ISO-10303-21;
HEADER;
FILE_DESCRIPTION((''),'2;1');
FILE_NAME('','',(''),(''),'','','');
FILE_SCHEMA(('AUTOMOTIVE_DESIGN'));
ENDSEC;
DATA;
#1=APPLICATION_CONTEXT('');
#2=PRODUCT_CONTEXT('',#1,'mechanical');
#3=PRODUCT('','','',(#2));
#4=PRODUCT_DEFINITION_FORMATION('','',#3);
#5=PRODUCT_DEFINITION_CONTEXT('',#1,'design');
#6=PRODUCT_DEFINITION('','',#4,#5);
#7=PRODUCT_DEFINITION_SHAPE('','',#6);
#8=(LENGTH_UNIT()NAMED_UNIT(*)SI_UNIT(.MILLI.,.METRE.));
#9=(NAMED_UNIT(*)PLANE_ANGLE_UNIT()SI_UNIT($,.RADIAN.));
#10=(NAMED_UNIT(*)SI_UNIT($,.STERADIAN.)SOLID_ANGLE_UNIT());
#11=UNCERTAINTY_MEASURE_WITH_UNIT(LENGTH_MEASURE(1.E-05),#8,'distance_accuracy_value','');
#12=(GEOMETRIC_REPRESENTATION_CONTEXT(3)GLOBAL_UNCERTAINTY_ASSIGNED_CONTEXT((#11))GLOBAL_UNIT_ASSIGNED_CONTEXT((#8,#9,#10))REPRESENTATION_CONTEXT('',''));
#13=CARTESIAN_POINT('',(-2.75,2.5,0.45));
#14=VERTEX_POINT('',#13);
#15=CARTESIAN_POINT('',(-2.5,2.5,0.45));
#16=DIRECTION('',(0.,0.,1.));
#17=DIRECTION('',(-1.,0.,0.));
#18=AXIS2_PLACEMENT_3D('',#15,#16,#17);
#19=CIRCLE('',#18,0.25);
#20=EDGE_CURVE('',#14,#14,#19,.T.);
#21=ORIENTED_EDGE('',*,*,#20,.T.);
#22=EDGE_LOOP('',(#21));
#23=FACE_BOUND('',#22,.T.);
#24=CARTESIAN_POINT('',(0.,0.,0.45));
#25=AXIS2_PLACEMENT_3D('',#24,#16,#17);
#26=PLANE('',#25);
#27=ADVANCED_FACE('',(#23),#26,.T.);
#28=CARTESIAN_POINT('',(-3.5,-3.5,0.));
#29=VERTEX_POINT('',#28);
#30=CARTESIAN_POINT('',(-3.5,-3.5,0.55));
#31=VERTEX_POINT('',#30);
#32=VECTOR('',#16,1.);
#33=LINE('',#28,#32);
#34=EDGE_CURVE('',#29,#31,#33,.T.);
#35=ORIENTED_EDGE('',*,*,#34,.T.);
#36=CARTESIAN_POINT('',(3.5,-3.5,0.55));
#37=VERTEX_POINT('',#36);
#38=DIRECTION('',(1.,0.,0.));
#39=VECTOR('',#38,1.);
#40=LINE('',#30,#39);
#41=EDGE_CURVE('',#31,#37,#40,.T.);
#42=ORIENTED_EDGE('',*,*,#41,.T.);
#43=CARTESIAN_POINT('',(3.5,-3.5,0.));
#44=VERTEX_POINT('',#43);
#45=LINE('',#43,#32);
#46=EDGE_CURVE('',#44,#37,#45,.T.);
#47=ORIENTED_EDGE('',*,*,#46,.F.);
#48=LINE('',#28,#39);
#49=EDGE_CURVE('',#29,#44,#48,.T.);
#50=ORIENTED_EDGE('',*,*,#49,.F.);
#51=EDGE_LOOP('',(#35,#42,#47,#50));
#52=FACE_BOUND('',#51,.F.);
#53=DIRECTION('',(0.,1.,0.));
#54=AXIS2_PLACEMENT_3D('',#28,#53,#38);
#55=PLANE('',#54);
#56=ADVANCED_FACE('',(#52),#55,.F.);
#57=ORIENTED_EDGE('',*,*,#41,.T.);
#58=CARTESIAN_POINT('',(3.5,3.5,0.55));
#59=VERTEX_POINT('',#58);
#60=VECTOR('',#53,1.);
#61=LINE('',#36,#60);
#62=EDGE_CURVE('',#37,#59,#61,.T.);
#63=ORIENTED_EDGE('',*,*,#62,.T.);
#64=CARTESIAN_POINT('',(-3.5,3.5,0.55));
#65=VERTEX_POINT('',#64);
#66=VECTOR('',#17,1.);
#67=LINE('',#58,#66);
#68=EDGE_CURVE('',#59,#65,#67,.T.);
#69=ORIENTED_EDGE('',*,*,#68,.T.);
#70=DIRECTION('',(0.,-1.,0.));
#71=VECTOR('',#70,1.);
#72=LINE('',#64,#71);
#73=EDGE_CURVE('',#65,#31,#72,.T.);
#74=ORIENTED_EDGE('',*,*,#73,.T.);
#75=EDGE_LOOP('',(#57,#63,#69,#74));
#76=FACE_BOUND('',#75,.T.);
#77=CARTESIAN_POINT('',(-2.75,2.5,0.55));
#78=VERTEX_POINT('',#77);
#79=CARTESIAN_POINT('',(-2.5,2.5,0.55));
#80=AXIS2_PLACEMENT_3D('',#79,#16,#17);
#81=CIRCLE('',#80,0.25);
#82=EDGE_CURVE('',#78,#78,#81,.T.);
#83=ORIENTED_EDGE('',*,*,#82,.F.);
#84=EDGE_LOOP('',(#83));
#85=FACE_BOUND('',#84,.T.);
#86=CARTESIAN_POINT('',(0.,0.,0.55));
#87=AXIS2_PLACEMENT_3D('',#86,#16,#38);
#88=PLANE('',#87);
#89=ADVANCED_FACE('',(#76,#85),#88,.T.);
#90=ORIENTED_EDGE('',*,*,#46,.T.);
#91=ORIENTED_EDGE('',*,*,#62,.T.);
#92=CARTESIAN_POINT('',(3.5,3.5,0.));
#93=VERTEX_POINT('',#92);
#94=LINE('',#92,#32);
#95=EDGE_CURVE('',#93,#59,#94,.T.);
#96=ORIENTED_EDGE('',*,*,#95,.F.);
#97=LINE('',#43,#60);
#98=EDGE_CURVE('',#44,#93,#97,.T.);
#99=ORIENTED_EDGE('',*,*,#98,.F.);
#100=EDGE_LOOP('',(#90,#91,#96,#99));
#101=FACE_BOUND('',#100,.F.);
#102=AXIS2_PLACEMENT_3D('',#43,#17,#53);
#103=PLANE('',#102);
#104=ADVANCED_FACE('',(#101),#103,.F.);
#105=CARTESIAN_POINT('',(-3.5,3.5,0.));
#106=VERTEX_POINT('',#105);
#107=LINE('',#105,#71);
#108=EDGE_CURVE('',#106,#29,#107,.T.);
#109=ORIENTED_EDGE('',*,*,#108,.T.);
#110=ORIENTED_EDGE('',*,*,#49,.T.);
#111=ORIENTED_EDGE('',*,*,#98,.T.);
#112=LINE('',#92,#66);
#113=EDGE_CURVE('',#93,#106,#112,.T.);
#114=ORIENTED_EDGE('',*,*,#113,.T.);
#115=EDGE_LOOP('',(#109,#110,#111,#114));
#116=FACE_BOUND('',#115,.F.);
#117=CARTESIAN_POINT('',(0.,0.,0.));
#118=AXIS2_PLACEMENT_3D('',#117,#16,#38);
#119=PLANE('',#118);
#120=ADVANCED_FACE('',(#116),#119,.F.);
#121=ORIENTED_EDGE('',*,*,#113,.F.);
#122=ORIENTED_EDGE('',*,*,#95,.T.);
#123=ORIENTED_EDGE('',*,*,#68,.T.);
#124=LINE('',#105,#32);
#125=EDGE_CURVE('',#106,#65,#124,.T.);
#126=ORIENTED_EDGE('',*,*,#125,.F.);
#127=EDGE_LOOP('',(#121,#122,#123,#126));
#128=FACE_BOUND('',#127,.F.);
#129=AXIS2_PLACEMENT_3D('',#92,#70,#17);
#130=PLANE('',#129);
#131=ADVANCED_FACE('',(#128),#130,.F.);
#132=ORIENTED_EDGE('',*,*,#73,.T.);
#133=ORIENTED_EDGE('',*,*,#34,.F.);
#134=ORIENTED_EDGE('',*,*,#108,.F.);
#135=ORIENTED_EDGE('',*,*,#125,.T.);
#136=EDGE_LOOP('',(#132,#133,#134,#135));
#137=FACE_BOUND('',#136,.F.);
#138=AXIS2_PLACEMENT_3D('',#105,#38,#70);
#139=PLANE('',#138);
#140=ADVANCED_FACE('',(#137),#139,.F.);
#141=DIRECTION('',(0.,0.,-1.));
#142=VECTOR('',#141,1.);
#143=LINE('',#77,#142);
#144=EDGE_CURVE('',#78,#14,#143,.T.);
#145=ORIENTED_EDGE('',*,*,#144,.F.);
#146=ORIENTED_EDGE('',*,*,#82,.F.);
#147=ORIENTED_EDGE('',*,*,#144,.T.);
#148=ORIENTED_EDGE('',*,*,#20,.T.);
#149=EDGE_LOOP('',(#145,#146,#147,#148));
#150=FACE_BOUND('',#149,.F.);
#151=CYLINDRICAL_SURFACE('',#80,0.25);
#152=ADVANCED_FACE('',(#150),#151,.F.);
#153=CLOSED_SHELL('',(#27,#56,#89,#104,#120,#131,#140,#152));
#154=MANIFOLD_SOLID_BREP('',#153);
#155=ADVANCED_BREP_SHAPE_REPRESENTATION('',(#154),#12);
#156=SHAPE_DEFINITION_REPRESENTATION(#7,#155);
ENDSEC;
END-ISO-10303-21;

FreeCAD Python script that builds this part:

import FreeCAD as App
import Part
import Sketcher
Q = App.Units.Quantity


def add_polygon(sketch, points):
    """Adds a closed chain of lines whose ends are joined by coincident constraints."""
    first, n = sketch.GeometryCount, len(points)
    for a, b in zip(points, points[1:] + points[:1]):
        sketch.addGeometry(Part.LineSegment(App.Vector(*a, 0), App.Vector(*b, 0)), False)
    for i in range(n):
        sketch.addConstraint(Sketcher.Constraint("Coincident", first + i, 2, first + (i + 1) % n, 1))

doc = App.newDocument("Part")
body = doc.addObject("PartDesign::Body", "Body")

sketch1 = body.newObject("Sketcher::SketchObject", "Sketch")
sketch1.AttachmentSupport = (doc.getObject("XY_Plane"), [""])
sketch1.MapMode = "FlatFace"
add_polygon(sketch1, [(4, -4), (4, 4), (-4, 4), (-4, -4)])
sketch1.addConstraint([
    Sketcher.Constraint("Vertical", 0),
    Sketcher.Constraint("Horizontal", 1),
    Sketcher.Constraint("Vertical", 2),
    Sketcher.Constraint("Horizontal", 3),
    Sketcher.Constraint("Symmetric", 0, 2, 2, 2, -1, 1),
    Sketcher.Constraint("Equal", 3, 0),
    Sketcher.Constraint("DistanceX", 1, 2, 1, 1, Q("7 mm")),
])
pad1 = body.newObject("PartDesign::Pad", "Pad")
pad1.Profile = sketch1
pad1.Length = 0.55

sketch2 = body.newObject("Sketcher::SketchObject", "Sketch001")
sketch2.AttachmentSupport = (doc.getObject("XY_Plane"), [""])
sketch2.MapMode = "FlatFace"
sketch2.AttachmentOffset = App.Placement(App.Vector(0, 0, 0.55), App.Rotation())
sketch2.addGeometry(Part.Circle(App.Vector(-2.5, 2.5, 0), App.Vector(0, 0, 1), 0.25), False)
sketch2.addConstraint([
    Sketcher.Constraint("Diameter", 0, Q("0.5 mm")),
    Sketcher.Constraint("DistanceX", 0, 3, -1, 1, Q("2.5 mm")),
    Sketcher.Constraint("DistanceY", -1, 1, 0, 3, Q("2.5 mm")),
])
pocket1 = body.newObject("PartDesign::Pocket", "Pocket")
pocket1.Profile = sketch2
pocket1.Length = 0.1

doc.recompute()
